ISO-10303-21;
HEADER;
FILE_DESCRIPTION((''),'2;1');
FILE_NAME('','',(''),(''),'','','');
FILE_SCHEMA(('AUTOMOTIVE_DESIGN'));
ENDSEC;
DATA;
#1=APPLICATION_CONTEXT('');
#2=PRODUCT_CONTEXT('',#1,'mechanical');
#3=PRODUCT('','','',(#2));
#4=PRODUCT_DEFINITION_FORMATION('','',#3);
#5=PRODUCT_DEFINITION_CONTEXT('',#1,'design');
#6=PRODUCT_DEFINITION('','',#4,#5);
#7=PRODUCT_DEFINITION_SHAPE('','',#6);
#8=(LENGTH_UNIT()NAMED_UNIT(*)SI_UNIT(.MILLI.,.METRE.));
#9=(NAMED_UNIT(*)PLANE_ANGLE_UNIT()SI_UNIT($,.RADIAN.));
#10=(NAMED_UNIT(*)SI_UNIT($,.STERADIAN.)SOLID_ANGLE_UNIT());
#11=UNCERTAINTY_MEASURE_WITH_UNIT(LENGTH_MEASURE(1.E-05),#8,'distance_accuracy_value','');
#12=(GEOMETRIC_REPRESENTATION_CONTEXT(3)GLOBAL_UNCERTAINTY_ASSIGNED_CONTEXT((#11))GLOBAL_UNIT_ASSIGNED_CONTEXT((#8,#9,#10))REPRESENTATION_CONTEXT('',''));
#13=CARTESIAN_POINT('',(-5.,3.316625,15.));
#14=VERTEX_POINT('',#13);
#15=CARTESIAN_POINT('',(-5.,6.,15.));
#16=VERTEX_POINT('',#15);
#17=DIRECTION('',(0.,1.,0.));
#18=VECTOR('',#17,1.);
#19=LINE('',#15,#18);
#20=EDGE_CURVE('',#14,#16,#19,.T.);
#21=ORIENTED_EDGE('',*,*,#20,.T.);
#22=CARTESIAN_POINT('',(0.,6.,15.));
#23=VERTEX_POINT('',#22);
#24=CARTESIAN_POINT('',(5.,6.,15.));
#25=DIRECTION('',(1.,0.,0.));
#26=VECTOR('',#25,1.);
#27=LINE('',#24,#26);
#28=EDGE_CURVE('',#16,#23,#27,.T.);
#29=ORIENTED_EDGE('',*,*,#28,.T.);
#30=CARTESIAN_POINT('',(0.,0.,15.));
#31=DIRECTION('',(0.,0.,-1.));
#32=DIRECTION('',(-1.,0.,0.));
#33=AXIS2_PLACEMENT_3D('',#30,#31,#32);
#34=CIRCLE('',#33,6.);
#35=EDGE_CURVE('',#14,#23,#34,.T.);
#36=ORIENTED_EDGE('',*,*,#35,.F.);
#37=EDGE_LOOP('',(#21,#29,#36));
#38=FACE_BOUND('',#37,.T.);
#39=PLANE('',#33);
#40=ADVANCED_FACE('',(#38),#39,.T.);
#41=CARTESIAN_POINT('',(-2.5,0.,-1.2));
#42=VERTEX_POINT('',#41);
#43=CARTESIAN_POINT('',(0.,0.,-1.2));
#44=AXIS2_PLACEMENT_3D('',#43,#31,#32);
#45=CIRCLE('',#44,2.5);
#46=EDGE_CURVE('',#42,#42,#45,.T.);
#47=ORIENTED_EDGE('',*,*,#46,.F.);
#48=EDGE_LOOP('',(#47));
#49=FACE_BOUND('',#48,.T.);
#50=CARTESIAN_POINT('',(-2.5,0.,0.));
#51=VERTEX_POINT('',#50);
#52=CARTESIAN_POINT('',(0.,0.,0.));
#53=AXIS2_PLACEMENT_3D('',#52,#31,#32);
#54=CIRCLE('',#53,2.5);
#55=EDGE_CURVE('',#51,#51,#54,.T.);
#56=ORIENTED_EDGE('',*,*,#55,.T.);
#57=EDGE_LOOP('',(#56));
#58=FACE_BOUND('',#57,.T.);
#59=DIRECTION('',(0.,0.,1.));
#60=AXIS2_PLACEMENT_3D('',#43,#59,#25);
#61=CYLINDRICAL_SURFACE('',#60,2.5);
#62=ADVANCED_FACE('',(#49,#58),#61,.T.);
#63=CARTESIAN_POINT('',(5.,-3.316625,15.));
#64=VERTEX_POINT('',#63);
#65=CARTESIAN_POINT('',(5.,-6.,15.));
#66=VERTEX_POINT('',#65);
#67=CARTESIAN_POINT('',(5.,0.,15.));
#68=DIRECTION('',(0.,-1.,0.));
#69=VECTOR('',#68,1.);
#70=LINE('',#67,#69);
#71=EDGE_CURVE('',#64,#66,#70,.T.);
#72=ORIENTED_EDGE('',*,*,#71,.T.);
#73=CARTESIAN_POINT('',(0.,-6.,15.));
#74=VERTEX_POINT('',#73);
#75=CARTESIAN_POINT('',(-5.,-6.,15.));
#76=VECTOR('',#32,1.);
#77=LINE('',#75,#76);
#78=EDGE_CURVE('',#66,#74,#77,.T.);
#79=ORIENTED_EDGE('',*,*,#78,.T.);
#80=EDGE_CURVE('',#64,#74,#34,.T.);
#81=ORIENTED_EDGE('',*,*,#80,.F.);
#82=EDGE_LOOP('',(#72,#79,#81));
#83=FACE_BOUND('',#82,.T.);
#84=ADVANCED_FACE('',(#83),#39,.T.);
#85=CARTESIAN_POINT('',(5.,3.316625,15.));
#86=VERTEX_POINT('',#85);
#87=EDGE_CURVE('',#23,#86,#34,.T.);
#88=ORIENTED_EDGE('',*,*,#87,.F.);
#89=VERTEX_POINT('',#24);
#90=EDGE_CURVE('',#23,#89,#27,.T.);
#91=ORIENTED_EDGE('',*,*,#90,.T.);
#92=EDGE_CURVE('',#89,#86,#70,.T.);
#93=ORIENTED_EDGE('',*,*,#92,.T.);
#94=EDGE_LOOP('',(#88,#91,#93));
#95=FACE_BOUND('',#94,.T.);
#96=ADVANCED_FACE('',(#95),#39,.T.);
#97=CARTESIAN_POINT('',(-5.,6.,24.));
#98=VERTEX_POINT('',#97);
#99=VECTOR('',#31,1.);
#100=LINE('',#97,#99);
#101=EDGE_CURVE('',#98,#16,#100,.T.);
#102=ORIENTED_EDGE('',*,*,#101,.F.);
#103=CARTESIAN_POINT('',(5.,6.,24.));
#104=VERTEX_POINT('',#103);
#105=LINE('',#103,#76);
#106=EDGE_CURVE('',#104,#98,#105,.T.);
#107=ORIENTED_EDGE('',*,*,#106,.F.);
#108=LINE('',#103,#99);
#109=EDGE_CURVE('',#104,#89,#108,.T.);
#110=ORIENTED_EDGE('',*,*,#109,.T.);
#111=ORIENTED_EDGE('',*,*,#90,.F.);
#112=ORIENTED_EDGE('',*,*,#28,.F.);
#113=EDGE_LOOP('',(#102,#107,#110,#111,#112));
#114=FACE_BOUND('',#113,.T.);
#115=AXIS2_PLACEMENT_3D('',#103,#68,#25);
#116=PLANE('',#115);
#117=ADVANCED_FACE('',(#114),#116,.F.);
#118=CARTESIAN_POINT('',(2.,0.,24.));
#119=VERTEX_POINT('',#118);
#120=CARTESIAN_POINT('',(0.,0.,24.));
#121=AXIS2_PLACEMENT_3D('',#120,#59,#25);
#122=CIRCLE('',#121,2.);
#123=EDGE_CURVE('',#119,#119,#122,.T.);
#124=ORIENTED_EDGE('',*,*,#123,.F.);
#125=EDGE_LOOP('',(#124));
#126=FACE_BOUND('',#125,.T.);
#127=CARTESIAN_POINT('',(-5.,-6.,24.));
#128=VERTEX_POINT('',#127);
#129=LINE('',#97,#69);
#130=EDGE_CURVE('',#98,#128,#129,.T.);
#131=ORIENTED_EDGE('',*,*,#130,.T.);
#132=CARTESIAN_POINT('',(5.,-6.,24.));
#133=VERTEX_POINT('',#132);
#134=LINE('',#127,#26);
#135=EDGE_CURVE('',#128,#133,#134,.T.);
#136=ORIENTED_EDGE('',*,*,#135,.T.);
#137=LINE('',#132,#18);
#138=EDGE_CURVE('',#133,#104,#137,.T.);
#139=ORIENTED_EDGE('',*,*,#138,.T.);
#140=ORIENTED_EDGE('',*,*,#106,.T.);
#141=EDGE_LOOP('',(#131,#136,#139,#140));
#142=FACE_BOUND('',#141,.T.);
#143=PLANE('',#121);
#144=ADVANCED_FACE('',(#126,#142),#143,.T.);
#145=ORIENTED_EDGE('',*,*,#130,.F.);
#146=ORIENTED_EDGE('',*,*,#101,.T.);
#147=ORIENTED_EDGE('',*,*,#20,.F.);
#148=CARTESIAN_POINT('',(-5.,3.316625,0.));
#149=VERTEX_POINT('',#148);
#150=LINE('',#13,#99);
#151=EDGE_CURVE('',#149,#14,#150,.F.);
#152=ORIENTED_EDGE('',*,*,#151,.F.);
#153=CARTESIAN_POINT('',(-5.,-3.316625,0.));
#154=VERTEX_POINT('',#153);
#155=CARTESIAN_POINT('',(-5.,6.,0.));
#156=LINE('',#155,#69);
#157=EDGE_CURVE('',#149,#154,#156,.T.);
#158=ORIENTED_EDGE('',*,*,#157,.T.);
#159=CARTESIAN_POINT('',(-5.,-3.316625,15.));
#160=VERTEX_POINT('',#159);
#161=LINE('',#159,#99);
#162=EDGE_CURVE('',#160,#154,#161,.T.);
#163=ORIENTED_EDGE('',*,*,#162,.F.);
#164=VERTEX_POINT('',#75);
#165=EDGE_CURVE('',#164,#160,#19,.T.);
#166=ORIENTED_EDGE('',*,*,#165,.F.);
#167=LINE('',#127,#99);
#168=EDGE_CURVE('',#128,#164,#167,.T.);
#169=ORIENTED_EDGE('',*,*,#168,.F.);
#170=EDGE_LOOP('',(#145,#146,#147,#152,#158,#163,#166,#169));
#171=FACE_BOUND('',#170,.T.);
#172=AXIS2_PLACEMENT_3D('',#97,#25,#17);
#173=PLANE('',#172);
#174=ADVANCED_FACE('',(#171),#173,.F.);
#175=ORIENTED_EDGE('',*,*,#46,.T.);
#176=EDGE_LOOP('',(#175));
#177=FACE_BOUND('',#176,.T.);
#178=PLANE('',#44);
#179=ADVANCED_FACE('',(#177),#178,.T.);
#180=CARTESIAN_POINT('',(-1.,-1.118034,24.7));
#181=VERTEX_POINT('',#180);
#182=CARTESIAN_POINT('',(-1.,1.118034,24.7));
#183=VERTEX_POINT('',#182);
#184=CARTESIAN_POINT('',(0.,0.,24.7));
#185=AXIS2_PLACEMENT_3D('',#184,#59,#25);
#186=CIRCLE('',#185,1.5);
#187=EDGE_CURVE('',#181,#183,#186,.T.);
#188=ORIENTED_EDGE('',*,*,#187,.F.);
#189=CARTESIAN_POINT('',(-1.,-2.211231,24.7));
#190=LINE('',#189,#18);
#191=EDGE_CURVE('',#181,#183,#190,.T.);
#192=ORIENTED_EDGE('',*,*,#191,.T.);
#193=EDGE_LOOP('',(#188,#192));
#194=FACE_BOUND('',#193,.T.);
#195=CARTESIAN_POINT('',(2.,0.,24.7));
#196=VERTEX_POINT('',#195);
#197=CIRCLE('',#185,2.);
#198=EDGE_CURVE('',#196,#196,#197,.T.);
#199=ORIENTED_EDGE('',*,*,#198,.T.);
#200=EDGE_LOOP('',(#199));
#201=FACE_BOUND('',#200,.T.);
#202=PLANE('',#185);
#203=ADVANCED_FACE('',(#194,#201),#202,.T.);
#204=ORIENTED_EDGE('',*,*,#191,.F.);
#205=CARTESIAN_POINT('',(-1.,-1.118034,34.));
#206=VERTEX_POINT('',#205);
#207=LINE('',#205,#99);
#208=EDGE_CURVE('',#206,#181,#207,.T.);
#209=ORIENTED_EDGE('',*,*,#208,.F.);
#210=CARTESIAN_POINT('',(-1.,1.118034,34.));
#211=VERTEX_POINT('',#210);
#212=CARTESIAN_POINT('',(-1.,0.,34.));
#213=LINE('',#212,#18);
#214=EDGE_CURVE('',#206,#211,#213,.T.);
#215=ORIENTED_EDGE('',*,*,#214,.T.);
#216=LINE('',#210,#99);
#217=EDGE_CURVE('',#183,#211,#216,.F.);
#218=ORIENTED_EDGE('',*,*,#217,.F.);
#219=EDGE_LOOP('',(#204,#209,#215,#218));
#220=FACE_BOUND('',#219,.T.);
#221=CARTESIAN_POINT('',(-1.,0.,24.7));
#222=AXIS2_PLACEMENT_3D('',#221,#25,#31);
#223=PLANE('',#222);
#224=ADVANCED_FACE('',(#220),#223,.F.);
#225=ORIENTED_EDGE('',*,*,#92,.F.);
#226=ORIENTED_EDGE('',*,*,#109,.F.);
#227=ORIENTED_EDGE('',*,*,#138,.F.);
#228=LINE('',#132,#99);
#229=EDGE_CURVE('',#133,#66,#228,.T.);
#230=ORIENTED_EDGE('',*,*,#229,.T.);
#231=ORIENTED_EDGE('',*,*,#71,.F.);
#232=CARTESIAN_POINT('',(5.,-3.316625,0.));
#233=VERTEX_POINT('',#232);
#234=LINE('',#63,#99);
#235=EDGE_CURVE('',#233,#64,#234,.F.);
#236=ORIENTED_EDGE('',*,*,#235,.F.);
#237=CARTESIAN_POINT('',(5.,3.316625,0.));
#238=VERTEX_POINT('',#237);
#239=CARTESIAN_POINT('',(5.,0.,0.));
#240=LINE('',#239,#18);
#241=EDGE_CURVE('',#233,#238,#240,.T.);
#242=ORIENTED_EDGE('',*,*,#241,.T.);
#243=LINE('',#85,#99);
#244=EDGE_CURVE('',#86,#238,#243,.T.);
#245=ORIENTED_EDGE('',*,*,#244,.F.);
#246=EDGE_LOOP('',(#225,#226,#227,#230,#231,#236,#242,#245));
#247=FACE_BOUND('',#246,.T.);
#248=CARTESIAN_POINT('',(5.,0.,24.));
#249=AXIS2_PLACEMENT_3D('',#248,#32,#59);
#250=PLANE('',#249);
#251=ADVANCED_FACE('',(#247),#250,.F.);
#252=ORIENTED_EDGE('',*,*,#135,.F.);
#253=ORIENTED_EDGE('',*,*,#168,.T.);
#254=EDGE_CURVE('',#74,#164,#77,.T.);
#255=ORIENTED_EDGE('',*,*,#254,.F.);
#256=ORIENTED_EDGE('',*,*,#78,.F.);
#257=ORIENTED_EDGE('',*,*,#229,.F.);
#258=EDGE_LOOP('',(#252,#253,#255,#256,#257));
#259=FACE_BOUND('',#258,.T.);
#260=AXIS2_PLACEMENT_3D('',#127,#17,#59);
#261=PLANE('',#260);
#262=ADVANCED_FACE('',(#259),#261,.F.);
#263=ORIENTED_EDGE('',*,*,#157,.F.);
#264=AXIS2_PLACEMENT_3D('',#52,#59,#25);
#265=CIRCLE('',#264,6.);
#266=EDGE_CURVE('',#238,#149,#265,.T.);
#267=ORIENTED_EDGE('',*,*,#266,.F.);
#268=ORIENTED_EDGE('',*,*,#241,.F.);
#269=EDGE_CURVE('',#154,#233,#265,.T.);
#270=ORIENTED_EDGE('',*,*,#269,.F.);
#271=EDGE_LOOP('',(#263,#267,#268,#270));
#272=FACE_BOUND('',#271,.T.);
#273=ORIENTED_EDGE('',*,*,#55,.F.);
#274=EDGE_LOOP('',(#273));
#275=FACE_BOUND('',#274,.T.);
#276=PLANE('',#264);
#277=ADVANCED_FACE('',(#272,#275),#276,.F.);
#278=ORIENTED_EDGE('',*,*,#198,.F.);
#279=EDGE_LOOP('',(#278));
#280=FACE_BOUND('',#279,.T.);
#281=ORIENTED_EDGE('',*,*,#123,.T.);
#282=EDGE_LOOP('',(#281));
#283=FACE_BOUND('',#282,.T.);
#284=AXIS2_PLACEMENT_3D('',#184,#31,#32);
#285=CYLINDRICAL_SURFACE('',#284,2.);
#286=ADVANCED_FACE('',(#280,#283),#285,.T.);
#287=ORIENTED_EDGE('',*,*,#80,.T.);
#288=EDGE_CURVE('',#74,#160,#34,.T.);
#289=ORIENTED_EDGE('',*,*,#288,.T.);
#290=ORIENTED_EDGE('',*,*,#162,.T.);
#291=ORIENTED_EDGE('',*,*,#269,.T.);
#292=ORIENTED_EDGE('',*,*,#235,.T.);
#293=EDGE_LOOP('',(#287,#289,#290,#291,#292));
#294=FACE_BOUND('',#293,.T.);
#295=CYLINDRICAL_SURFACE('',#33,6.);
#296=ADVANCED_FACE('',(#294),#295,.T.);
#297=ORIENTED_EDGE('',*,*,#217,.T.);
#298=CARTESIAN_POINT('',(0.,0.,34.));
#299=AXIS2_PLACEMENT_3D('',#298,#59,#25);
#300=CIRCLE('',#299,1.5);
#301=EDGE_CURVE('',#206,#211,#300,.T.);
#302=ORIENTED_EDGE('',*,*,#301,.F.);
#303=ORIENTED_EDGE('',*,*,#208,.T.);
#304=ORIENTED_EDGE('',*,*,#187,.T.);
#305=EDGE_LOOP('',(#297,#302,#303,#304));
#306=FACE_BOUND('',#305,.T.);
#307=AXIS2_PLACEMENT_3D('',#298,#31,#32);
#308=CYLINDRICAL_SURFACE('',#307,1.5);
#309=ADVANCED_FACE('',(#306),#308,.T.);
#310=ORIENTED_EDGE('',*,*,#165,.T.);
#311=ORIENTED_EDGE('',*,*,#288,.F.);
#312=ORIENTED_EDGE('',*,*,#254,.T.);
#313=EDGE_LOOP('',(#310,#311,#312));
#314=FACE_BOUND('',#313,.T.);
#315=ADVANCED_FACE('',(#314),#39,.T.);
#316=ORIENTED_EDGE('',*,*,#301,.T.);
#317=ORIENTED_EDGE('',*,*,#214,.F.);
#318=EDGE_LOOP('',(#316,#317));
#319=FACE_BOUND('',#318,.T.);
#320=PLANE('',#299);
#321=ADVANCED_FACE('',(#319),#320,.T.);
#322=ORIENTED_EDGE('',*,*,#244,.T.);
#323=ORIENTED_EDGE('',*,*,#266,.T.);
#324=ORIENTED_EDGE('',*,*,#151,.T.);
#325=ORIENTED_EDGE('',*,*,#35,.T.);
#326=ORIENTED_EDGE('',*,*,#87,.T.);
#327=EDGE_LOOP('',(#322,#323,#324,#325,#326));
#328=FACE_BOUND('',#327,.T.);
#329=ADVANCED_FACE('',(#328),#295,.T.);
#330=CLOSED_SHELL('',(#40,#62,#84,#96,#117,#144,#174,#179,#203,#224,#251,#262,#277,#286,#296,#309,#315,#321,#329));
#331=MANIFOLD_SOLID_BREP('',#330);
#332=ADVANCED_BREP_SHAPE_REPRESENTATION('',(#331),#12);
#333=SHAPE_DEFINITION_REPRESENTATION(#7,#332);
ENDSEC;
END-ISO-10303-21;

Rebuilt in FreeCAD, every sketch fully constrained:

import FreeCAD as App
import Part
import Sketcher
from FreeCAD import Vector


def add_polygon(sketch, points):
    """Adds a closed chain of lines whose ends are joined by coincident constraints."""
    first, n = sketch.GeometryCount, len(points)
    for a, b in zip(points, points[1:] + points[:1]):
        sketch.addGeometry(Part.LineSegment(App.Vector(*a, 0), App.Vector(*b, 0)), False)
    for i in range(n):
        sketch.addConstraint(Sketcher.Constraint("Coincident", first + i, 2, first + (i + 1) % n, 1))

doc = App.newDocument("Part")
body = doc.addObject("PartDesign::Body", "Body")

sketch1 = body.newObject("Sketcher::SketchObject", "Sketch")
sketch1.AttachmentSupport = (doc.getObject("XY_Plane"), [""])
sketch1.MapMode = "FlatFace"
add_polygon(sketch1, [(5, 6), (-5, 6), (-5, -6), (5, -6)])
sketch1.addConstraint(Sketcher.Constraint("Horizontal", 0))
sketch1.addConstraint(Sketcher.Constraint("Vertical", 1))
sketch1.addConstraint(Sketcher.Constraint("Horizontal", 2))
sketch1.addConstraint(Sketcher.Constraint("Vertical", 3))
sketch1.addConstraint(Sketcher.Constraint("Symmetric", 0, 2, 2, 2, -1, 1))
sketch1.addConstraint(Sketcher.Constraint("DistanceX", 0, 2, 0, 1, 10.0))
sketch1.addConstraint(Sketcher.Constraint("DistanceY", 1, 2, 1, 1, 12.0))
pad1 = body.newObject("PartDesign::Pad", "Pad")
pad1.Profile = sketch1
pad1.Length = 24

sketch2 = body.newObject("Sketcher::SketchObject", "Sketch001")
sketch2.AttachmentSupport = (doc.getObject("XY_Plane"), [""])
sketch2.MapMode = "FlatFace"
sketch2.addGeometry(Part.Circle(Vector(0, 0, 0), Vector(0, 0, 1), 2.5), False)
sketch2.addConstraint(Sketcher.Constraint("Coincident", 0, 3, -1, 1))
sketch2.addConstraint(Sketcher.Constraint("Diameter", 0, 5.0))
pad2 = body.newObject("PartDesign::Pad", "Pad001")
pad2.Profile = sketch2
pad2.Length = 1.2
pad2.Reversed = True

sketch3 = body.newObject("Sketcher::SketchObject", "Sketch002")
sketch3.AttachmentSupport = (doc.getObject("XY_Plane"), [""])
sketch3.MapMode = "FlatFace"
sketch3.AttachmentOffset = App.Placement(Vector(0, 0, 24), App.Rotation())
sketch3.addGeometry(Part.Circle(Vector(0, 0, 0), Vector(0, 0, 1), 2), False)
sketch3.addConstraint(Sketcher.Constraint("Coincident", 0, 3, -1, 1))
sketch3.addConstraint(Sketcher.Constraint("Diameter", 0, 4.0))
pad3 = body.newObject("PartDesign::Pad", "Pad002")
pad3.Profile = sketch3
pad3.Length = 0.7

sketch4 = body.newObject("Sketcher::SketchObject", "Sketch003")
sketch4.AttachmentSupport = (doc.getObject("XY_Plane"), [""])
sketch4.MapMode = "FlatFace"
sketch4.AttachmentOffset = App.Placement(Vector(0, 0, 24.7), App.Rotation())
sketch4.addGeometry(Part.Circle(Vector(0, 0, 0), Vector(0, 0, 1), 1.5), False)
sketch4.addConstraint(Sketcher.Constraint("Coincident", 0, 3, -1, 1))
sketch4.addConstraint(Sketcher.Constraint("Diameter", 0, 3.0))
pad4 = body.newObject("PartDesign::Pad", "Pad003")
pad4.Profile = sketch4
pad4.Length = 9.3

sketch5 = body.newObject("Sketcher::SketchObject", "Sketch004")
sketch5.AttachmentSupport = (doc.getObject("XY_Plane"), [""])
sketch5.MapMode = "FlatFace"
sketch5.addGeometry(Part.Circle(Vector(0, 0, 0), Vector(0, 0, 1), 9), False)
sketch5.addGeometry(Part.Circle(Vector(0, 0, 0), Vector(0, 0, 1), 6), False)
sketch5.addConstraint(Sketcher.Constraint("Coincident", 0, 3, -1, 1))
sketch5.addConstraint(Sketcher.Constraint("Coincident", 1, 3, -1, 1))
sketch5.addConstraint(Sketcher.Constraint("Diameter", 1, 12.0))
sketch5.addConstraint(Sketcher.Constraint("Diameter", 0, 17.615983))
pocket1 = body.newObject("PartDesign::Pocket", "Pocket")
pocket1.Profile = sketch5
pocket1.Length = 15
pocket1.Reversed = True

sketch6 = body.newObject("Sketcher::SketchObject", "Sketch005")
sketch6.AttachmentSupport = (doc.getObject("XY_Plane"), [""])
sketch6.MapMode = "FlatFace"
sketch6.AttachmentOffset = App.Placement(Vector(0, 0, 34), App.Rotation())
add_polygon(sketch6, [(-1, 3.3), (-2.6, 3.3), (-2.6, -2.2), (-1, -2.2)])
sketch6.addConstraint(Sketcher.Constraint("Horizontal", 0))
sketch6.addConstraint(Sketcher.Constraint("Vertical", 1))
sketch6.addConstraint(Sketcher.Constraint("Horizontal", 2))
sketch6.addConstraint(Sketcher.Constraint("Vertical", 3))
sketch6.addConstraint(Sketcher.Constraint("DistanceX", 2, 2, -1, 1, 1.0))
sketch6.addConstraint(Sketcher.Constraint("DistanceX", 0, 2, 0, 1, 1.573415))
sketch6.addConstraint(Sketcher.Constraint("DistanceY", 1, 2, 1, 1, 5.553494))
sketch6.addConstraint(Sketcher.Constraint("DistanceY", 1, 2, -1, 1, 2.211231))
pocket2 = body.newObject("PartDesign::Pocket", "Pocket001")
pocket2.Profile = sketch6
pocket2.Length = 9.3

doc.recompute()
